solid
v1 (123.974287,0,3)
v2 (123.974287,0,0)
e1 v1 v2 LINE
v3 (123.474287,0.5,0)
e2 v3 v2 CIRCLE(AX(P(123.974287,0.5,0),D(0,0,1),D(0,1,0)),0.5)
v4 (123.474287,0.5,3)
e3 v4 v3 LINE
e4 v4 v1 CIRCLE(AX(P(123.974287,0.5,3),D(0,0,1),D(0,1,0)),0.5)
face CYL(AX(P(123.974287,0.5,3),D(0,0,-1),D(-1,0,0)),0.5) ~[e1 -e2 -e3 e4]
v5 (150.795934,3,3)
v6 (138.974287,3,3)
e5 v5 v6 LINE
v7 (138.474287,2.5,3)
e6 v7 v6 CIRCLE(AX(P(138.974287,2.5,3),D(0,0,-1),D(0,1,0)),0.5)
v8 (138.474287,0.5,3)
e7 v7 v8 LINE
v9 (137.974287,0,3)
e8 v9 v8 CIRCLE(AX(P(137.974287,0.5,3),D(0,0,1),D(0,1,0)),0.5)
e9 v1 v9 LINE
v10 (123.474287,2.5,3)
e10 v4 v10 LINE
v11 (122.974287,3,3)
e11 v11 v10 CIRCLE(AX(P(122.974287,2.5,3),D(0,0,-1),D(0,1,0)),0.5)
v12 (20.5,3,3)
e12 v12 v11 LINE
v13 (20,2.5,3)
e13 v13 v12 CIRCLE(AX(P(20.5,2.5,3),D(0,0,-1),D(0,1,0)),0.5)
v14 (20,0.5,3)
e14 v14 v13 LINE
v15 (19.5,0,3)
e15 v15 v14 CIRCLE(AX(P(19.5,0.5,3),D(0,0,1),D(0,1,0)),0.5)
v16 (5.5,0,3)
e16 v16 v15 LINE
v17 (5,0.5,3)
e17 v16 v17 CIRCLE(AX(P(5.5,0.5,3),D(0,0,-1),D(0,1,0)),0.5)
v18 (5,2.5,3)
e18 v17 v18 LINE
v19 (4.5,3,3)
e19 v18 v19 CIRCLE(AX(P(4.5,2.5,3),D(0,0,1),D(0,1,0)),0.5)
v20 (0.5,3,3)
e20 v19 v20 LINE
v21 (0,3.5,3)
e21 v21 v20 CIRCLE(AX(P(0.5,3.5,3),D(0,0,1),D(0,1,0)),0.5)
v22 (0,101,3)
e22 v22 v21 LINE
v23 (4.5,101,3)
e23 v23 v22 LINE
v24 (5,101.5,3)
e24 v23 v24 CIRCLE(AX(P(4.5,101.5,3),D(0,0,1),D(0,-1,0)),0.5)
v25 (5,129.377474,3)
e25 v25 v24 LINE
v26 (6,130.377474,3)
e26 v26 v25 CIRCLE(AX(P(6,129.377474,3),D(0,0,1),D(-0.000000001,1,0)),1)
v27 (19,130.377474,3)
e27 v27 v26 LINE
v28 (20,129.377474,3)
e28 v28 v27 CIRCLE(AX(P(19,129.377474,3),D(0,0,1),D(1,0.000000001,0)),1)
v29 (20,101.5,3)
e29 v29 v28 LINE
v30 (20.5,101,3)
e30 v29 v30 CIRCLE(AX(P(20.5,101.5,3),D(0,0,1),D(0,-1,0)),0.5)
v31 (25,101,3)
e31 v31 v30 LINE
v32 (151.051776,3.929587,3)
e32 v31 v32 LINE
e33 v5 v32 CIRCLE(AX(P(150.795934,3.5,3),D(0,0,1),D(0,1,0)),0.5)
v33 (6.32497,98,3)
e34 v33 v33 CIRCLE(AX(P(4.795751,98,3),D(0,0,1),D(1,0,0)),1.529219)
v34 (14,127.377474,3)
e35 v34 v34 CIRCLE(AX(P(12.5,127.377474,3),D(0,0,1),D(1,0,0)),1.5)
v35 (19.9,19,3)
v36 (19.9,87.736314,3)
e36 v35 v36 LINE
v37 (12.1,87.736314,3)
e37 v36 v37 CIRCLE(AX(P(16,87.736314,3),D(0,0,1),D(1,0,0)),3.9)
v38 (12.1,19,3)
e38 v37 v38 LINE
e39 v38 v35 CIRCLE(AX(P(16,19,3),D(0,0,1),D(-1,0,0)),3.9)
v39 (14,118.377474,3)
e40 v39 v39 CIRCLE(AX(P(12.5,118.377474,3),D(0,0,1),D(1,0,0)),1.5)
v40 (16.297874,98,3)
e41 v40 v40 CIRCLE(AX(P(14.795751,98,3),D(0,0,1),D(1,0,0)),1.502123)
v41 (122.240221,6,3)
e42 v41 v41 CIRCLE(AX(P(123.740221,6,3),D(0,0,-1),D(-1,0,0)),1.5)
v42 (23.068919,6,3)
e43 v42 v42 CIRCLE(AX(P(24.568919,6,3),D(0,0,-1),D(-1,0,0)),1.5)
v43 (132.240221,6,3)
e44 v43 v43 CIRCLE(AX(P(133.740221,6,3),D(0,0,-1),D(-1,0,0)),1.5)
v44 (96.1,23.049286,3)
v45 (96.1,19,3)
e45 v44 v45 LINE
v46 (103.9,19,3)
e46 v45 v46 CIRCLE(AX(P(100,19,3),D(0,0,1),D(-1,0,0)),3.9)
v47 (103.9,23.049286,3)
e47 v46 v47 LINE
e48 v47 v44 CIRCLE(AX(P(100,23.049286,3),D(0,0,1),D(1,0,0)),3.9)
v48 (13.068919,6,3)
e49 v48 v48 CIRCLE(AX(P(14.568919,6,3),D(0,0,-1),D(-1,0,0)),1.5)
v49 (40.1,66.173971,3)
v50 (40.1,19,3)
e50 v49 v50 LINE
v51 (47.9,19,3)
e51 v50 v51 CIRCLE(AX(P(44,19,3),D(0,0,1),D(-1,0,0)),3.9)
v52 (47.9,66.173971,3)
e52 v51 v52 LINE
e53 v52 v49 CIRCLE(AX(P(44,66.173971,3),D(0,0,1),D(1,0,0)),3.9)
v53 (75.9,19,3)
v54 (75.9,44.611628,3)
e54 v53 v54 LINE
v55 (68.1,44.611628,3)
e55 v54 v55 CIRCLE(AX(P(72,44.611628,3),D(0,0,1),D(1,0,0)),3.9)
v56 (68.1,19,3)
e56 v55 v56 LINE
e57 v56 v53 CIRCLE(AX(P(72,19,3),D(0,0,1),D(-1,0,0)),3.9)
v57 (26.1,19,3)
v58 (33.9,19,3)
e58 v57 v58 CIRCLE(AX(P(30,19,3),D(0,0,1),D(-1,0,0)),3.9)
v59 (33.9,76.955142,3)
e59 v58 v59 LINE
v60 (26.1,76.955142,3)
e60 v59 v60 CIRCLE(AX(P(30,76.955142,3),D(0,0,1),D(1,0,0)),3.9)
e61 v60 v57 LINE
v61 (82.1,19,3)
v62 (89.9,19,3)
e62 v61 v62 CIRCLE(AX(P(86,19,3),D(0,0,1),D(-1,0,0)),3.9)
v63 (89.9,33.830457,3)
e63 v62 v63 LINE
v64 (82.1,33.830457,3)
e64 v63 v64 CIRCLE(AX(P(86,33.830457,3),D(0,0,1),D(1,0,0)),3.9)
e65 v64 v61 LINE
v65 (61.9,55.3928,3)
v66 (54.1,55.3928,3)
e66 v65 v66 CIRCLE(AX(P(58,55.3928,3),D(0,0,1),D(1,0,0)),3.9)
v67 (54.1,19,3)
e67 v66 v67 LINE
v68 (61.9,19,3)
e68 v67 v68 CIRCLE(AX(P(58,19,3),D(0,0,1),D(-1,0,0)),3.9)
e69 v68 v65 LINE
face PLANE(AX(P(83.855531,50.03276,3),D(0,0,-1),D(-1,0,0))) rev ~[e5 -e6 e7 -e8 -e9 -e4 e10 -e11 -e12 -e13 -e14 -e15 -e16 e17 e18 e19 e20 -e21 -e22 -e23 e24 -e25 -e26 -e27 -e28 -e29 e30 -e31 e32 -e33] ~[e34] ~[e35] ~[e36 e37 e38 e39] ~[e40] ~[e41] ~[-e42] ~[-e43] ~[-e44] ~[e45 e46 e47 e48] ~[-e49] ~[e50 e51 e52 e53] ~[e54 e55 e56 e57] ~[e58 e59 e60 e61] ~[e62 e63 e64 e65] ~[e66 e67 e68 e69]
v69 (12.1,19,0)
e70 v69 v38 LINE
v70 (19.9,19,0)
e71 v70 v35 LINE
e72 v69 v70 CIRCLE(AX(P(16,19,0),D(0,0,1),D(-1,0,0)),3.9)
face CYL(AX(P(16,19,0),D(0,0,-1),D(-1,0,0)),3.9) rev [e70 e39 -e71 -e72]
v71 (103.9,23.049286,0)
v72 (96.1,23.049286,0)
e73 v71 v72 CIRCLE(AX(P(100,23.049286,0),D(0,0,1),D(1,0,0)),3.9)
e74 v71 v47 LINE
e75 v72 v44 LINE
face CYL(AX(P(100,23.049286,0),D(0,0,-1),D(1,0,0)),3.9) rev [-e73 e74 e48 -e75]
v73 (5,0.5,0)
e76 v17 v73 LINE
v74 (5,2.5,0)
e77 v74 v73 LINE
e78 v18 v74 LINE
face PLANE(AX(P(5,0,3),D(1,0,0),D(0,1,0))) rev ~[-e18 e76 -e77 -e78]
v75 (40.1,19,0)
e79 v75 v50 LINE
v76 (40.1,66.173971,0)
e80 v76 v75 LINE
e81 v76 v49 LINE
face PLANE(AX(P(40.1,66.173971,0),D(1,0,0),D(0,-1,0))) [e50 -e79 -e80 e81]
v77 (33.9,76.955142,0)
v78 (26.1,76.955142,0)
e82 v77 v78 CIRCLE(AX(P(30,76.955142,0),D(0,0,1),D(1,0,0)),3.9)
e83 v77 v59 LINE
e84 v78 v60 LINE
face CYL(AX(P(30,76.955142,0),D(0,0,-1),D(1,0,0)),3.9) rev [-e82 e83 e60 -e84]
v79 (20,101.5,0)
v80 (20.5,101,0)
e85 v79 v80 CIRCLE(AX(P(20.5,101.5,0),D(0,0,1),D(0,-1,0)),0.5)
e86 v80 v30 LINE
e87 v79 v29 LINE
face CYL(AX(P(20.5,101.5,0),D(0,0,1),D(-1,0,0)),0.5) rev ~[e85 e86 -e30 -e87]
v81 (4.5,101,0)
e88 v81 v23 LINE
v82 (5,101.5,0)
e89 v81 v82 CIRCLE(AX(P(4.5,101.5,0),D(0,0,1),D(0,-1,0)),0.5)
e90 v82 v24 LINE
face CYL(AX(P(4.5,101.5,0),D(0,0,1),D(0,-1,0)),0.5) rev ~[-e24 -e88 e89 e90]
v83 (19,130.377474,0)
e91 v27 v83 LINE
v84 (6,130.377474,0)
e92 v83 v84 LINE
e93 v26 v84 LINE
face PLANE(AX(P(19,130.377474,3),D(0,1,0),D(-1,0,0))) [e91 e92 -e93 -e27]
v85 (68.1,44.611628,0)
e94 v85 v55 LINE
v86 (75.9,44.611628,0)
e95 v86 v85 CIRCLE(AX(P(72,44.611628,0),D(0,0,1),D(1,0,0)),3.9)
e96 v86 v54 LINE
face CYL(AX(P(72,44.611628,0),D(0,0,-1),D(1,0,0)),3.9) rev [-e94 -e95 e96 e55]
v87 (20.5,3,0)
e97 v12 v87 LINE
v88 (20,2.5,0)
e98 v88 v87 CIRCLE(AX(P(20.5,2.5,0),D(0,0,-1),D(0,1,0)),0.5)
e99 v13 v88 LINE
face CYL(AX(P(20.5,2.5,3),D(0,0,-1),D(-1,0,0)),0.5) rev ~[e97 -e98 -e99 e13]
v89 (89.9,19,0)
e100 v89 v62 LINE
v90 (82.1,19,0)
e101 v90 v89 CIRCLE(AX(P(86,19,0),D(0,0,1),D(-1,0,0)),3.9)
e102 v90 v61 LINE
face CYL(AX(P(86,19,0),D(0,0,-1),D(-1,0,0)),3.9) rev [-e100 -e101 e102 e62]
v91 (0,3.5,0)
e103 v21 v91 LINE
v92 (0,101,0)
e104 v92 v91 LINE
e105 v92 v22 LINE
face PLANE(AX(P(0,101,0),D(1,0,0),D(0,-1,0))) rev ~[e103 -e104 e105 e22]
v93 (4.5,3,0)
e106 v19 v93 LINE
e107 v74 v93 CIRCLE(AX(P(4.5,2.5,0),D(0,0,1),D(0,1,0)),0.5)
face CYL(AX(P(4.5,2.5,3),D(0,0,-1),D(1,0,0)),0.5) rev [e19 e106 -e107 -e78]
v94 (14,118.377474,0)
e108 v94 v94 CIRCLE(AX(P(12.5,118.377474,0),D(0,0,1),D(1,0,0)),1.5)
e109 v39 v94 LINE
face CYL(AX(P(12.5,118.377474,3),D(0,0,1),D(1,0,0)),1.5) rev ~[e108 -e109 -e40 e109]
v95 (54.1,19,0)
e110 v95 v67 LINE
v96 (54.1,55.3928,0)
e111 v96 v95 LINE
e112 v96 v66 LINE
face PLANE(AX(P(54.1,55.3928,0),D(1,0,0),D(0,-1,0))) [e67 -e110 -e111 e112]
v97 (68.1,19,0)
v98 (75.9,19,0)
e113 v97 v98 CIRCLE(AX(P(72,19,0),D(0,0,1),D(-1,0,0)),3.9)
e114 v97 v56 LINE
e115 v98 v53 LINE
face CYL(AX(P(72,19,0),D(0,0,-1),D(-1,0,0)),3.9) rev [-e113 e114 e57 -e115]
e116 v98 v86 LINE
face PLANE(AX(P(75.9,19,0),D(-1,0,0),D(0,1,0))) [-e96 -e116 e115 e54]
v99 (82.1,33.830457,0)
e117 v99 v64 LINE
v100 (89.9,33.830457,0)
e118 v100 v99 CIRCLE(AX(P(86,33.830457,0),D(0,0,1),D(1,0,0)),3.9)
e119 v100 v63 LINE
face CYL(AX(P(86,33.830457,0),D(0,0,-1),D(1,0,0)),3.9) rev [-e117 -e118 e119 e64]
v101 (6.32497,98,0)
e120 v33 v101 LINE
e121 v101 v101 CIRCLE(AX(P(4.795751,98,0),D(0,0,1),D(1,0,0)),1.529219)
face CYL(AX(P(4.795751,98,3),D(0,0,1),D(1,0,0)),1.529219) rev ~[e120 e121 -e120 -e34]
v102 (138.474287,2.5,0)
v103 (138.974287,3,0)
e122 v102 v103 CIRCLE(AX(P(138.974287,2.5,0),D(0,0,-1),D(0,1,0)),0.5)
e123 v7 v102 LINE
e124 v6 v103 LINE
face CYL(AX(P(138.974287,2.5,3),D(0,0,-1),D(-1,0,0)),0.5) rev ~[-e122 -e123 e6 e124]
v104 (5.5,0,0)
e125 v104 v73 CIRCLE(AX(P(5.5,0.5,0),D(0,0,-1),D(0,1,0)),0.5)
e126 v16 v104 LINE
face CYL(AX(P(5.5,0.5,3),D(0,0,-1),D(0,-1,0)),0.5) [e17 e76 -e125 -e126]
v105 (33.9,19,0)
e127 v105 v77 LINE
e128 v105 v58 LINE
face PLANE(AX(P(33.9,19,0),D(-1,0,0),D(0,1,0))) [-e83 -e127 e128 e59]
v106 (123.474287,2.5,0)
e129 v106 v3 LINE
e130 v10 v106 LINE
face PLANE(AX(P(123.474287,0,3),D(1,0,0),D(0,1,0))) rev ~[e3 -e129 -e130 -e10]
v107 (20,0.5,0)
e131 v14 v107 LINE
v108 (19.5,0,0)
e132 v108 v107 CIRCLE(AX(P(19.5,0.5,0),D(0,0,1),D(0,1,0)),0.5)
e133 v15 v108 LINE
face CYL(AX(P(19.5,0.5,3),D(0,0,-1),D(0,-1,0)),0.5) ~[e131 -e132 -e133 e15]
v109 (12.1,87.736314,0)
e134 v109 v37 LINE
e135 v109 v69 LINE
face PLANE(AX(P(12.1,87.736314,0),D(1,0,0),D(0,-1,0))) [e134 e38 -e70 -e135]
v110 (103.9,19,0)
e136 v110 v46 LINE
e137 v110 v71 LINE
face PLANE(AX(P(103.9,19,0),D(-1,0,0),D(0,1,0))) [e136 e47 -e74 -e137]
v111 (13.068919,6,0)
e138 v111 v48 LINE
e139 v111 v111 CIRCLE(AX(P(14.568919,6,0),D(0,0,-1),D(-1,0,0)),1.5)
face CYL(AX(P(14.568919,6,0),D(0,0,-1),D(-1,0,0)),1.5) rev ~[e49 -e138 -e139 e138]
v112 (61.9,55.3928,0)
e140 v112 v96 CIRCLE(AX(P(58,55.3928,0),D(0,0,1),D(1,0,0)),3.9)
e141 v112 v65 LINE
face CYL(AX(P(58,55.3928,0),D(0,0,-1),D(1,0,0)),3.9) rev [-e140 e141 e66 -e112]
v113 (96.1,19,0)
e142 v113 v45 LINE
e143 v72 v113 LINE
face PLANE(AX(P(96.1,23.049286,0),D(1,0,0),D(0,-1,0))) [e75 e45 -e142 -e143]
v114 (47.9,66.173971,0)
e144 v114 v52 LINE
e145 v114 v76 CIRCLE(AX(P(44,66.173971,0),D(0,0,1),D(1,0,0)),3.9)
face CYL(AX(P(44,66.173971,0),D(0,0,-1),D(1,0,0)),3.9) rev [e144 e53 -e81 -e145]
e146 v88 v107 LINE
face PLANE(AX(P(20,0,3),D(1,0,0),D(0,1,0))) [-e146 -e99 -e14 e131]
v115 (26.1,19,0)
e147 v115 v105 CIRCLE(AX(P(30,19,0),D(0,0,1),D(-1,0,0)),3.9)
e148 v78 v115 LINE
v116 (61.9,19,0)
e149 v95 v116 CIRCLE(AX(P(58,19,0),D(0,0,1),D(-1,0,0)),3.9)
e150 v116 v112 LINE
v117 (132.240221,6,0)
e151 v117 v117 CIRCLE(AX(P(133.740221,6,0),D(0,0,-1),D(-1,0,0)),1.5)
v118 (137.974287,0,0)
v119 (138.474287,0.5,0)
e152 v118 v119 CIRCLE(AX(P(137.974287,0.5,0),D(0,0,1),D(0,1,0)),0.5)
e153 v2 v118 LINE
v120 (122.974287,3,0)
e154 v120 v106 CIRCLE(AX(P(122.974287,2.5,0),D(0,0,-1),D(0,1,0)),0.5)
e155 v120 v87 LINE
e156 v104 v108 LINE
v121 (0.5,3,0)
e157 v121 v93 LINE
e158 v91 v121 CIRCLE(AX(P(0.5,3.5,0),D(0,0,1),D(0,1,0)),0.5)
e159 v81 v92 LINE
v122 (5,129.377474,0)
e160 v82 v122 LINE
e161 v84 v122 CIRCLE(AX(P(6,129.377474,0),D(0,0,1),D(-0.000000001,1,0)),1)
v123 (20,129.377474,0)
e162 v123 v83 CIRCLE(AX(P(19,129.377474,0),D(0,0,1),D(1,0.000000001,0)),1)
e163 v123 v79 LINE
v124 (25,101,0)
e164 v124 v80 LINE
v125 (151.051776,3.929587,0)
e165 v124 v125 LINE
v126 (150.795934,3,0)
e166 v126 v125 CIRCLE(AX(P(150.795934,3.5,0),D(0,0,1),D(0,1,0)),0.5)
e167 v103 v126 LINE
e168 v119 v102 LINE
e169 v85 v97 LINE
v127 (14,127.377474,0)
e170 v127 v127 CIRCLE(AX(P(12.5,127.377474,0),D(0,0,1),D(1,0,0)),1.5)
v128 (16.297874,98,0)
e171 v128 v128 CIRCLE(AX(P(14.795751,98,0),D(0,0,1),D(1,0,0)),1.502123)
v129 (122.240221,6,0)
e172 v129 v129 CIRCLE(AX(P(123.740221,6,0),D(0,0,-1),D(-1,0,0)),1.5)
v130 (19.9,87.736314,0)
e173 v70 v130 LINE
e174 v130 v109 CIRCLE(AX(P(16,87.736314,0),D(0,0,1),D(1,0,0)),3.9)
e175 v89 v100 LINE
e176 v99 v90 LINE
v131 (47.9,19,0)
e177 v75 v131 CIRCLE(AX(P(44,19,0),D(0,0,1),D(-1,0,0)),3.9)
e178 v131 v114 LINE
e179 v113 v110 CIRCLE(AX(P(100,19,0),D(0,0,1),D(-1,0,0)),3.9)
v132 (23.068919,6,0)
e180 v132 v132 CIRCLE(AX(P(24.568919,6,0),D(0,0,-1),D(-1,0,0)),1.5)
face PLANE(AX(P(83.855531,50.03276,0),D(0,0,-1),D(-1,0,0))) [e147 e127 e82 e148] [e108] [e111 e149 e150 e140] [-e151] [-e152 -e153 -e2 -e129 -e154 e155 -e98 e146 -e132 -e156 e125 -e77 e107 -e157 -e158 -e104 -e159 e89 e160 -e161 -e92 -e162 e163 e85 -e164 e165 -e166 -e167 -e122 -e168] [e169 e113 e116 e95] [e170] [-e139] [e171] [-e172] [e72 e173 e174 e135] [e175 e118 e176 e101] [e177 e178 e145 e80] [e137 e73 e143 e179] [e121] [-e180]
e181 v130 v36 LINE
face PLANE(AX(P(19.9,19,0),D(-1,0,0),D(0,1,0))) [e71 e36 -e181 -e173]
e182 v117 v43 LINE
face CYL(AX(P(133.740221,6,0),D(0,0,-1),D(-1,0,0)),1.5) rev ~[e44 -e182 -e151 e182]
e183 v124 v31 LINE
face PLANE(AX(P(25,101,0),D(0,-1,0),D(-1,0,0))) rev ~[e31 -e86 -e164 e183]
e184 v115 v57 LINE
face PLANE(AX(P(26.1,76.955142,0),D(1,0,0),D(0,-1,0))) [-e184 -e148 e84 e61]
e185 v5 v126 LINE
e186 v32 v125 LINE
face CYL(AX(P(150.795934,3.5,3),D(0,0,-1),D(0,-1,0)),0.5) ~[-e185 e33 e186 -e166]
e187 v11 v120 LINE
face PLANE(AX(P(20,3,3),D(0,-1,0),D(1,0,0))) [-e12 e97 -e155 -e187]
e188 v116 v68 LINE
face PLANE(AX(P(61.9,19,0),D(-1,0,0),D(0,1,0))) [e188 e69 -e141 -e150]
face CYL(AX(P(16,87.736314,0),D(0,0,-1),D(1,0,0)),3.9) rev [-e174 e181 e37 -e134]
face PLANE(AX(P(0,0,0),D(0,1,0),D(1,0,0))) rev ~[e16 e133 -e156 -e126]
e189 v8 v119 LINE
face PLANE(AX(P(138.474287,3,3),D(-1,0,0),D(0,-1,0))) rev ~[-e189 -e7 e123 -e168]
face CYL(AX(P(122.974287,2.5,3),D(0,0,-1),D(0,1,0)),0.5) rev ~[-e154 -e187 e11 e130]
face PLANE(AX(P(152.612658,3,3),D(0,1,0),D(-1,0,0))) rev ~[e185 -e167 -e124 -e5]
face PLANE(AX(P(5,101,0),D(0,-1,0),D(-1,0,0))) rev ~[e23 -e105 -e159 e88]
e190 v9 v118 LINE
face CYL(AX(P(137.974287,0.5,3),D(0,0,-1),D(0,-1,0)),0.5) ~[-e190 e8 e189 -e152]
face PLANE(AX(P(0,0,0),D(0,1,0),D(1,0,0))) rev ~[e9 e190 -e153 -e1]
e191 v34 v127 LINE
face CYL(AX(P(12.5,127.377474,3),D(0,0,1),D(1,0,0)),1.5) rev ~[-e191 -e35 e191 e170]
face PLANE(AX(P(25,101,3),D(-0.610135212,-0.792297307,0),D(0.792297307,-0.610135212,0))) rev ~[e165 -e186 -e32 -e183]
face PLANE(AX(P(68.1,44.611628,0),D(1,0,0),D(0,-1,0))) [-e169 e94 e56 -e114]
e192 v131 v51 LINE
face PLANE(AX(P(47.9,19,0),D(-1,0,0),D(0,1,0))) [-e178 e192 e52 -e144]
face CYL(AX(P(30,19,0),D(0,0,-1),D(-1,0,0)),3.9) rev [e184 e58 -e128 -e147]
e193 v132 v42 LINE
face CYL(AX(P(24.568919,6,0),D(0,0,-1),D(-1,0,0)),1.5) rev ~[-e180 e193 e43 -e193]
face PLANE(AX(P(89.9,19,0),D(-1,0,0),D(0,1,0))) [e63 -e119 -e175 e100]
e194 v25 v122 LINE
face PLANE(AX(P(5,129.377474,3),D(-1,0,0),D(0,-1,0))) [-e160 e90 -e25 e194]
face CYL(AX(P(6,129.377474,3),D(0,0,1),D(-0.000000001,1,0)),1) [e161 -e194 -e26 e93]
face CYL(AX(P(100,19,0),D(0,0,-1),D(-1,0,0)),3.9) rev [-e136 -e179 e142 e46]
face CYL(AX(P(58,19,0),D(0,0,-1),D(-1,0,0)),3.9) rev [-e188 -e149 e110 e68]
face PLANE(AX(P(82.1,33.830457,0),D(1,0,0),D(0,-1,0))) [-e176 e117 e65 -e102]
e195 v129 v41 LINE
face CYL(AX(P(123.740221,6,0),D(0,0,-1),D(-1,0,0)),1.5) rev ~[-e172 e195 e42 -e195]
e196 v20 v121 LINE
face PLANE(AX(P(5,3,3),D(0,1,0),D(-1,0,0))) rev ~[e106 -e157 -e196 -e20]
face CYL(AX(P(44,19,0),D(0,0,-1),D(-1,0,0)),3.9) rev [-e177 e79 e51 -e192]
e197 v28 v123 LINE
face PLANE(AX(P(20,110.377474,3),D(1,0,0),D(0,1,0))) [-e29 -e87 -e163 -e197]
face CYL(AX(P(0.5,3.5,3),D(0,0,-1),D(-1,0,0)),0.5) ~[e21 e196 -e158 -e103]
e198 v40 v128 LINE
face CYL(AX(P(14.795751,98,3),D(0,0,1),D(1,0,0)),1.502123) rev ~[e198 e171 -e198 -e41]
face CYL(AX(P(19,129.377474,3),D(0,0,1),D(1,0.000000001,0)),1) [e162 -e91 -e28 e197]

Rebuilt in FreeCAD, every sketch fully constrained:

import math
import FreeCAD as App
import Part
import Sketcher

V = App.Vector
Q = App.Units.Quantity


def edges_at(feature, points):
    """Names of the edges that pass closest to the given points."""
    edges = feature.Shape.Edges
    near = lambda p: min(range(len(edges)), key=lambda i: edges[i].distToShape(Part.Vertex(*p))[0])
    return sorted({f"Edge{near(p) + 1}" for p in points})


def add_polygon(sketch, points):
    """Adds a closed chain of lines whose ends are joined by coincident constraints."""
    first, n = sketch.GeometryCount, len(points)
    for a, b in zip(points, points[1:] + points[:1]):
        sketch.addGeometry(Part.LineSegment(App.Vector(*a, 0), App.Vector(*b, 0)), False)
    for i in range(n):
        sketch.addConstraint(Sketcher.Constraint("Coincident", first + i, 2, first + (i + 1) % n, 1))

doc = App.newDocument("Part")
body = doc.addObject("PartDesign::Body", "Body")

# Sketch on XY plane
sketch1 = body.newObject("Sketcher::SketchObject", "Sketch")
sketch1.AttachmentSupport = (doc.getObject("XY_Plane"), [""])
sketch1.MapMode = "FlatFace"
add_polygon(sketch1, [(0, 101), (0, 0), (157.7, 0), (25, 79), (25, 101), (20, 101), (20, 104), (5, 104), (5, 101)])  # lines 0-8
sketch1.addConstraint([
    Sketcher.Constraint("Vertical", 0),
    Sketcher.Constraint("Horizontal", 1),
    Sketcher.Constraint("Vertical", 3),
    Sketcher.Constraint("Horizontal", 4),
    Sketcher.Constraint("Vertical", 5),
    Sketcher.Constraint("Horizontal", 6),
    Sketcher.Constraint("Vertical", 7),
    Sketcher.Constraint("Horizontal", 8),
    Sketcher.Constraint("Coincident", 0, 2, -1, 1),
    Sketcher.Constraint("Horizontal", 4, 2, 7, 2),
    Sketcher.Constraint("Equal", 4, 8),
    Sketcher.Constraint("DistanceX", 4, 2, 4, 1, Q("5 mm")),
    Sketcher.Constraint("DistanceX", 6, 2, 6, 1, Q("15 mm")),
    Sketcher.Constraint("DistanceY", 0, 2, 0, 1, Q("101 mm")),
    Sketcher.Constraint("DistanceY", 3, 1, 3, 2, Q("22 mm")),
    Sketcher.Constraint("DistanceY", 5, 1, 5, 2, Q("3 mm")),
    Sketcher.Constraint("DistanceX", 1, 1, 1, 2, Q("157.65 mm")),
])
pad1 = body.newObject("PartDesign::Pad", "Pad")
pad1.Profile = sketch1
pad1.Length = 3

# Sketch on XZ plane
sketch2 = body.newObject("Sketcher::SketchObject", "Sketch001")
sketch2.AttachmentSupport = (doc.getObject("XZ_Plane"), [""])
sketch2.MapMode = "FlatFace"
sketch2.AttachmentOffset = App.Placement(V(0, 0, -104), App.Rotation())
add_polygon(sketch2, [(5, 0), (5, 3), (20, 3), (20, 0)])  # lines 0-3
sketch2.addConstraint([
    Sketcher.Constraint("Vertical", 0),
    Sketcher.Constraint("Horizontal", 1),
    Sketcher.Constraint("Vertical", 2),
    Sketcher.Constraint("Horizontal", 3),
    Sketcher.Constraint("PointOnObject", 2, 2, -1),
    Sketcher.Constraint("DistanceX", 1, 1, 1, 2, Q("15 mm")),
    Sketcher.Constraint("DistanceY", 0, 1, 0, 2, Q("3 mm")),
    Sketcher.Constraint("DistanceX", -1, 1, 0, 2, Q("5 mm")),
])
pad2 = body.newObject("PartDesign::Pad", "Pad001")
pad2.Profile = sketch2
pad2.Length = 0.5
pad2.Reversed = True
doc.recompute()

fillet = body.newObject("PartDesign::Fillet", "Fillet")
fillet.Base = (pad2, edges_at(pad2, [(25, 79, 1.5)]))
fillet.Radius = 3
doc.recompute()

fillet2 = body.newObject("PartDesign::Fillet", "Fillet001")
fillet2.Base = (fillet, edges_at(fillet, [(157.65, 0, 1.5)]))
fillet2.Radius = 0.5
doc.recompute()

fillet3 = body.newObject("PartDesign::Fillet", "Fillet002")
fillet3.Base = (fillet2, edges_at(fillet2, [(0, 0, 1.5)]))
fillet3.Radius = 0.5

# Sketch on XY plane
sketch3 = body.newObject("Sketcher::SketchObject", "Sketch002")
sketch3.AttachmentSupport = (doc.getObject("XY_Plane"), [""])
sketch3.MapMode = "FlatFace"
sketch3.AttachmentOffset = App.Placement(V(0, 0, 3), App.Rotation())
add_polygon(sketch3, [(20, 3), (20, 0), (123.47, 0), (123.47, 3)])  # lines 0-3
sketch3.addGeometry(Part.LineSegment(V(5, 3, 0), V(0, 3, 0)), False)  # 4
sketch3.addGeometry(Part.LineSegment(V(0, 3, 0), V(0, 0.5, 0)), False)  # 5
sketch3.addGeometry(Part.ArcOfCircle(Part.Circle(V(0.5, 0.5, 0), V(0, 0, 1), 0.5), math.radians(180), math.radians(270)), False)  # 6
sketch3.addGeometry(Part.LineSegment(V(0.5, 0, 0), V(5, 0, 0)), False)  # 7
sketch3.addGeometry(Part.LineSegment(V(5, 0, 0), V(5, 3, 0)), False)  # 8
sketch3.addGeometry(Part.LineSegment(V(152.61, 3, 0), V(138.47, 3, 0)), False)  # 9
sketch3.addGeometry(Part.LineSegment(V(138.47, 3, 0), V(138.47, 0, 0)), False)  # 10
sketch3.addGeometry(Part.LineSegment(V(138.47, 0, 0), V(155.83, 0, 0)), False)  # 11
sketch3.addGeometry(Part.ArcOfCircle(Part.Circle(V(155.83, 0.5, 0), V(0, 0, 1), 0.5), math.radians(-90), math.radians(59)), False)  # 12
sketch3.addGeometry(Part.LineSegment(V(156.09, 0.93, 0), V(152.61, 3, 0)), False)  # 13
sketch3.addConstraint([
    Sketcher.Constraint("Coincident", 4, 2, 5, 1),
    Sketcher.Constraint("Tangent", 5, 2, 6, 1),
    Sketcher.Constraint("Tangent", 6, 2, 7, 1),
    Sketcher.Constraint("Coincident", 7, 2, 8, 1),
    Sketcher.Constraint("Coincident", 8, 2, 4, 1),
    Sketcher.Constraint("Coincident", 9, 2, 10, 1),
    Sketcher.Constraint("Coincident", 10, 2, 11, 1),
    Sketcher.Constraint("Tangent", 11, 2, 12, 1),
    Sketcher.Constraint("Tangent", 12, 2, 13, 1),
    Sketcher.Constraint("Coincident", 13, 2, 9, 1),
    Sketcher.Constraint("Vertical", 0),
    Sketcher.Constraint("Horizontal", 1),
    Sketcher.Constraint("Vertical", 2),
    Sketcher.Constraint("Horizontal", 3),
    Sketcher.Constraint("Horizontal", 4),
    Sketcher.Constraint("Vertical", 5),
    Sketcher.Constraint("Horizontal", 7),
    Sketcher.Constraint("Vertical", 8),
    Sketcher.Constraint("Horizontal", 9),
    Sketcher.Constraint("Vertical", 10),
    Sketcher.Constraint("Horizontal", 11),
    Sketcher.Constraint("Equal", 6, 12),
    Sketcher.Constraint("PointOnObject", 0, 2, -1),
    Sketcher.Constraint("PointOnObject", 4, 2, -2),
    Sketcher.Constraint("PointOnObject", 6, 2, -1),
    Sketcher.Constraint("PointOnObject", 10, 2, -1),
    Sketcher.Constraint("Horizontal", 3, 2, 4, 2),
    Sketcher.Constraint("Horizontal", 8, 2, 9, 2),
    Sketcher.Constraint("Radius", 6, Q("0.5 mm")),
    Sketcher.Constraint("DistanceX", 4, 2, 4, 1, Q("5 mm")),
    Sketcher.Constraint("DistanceY", 0, 2, 0, 1, Q("3 mm")),
    Sketcher.Constraint("DistanceX", -1, 1, 0, 2, Q("20 mm")),
    Sketcher.Constraint("DistanceX", 2, 2, 9, 2, Q("15 mm")),
    Sketcher.Constraint("DistanceX", 9, 2, 9, 1, Q("14.138371 mm")),
    Sketcher.Constraint("DistanceX", 11, 1, 11, 2, Q("17.358988 mm")),
    Sketcher.Constraint("DistanceX", 1, 1, 1, 2, Q("103.474287 mm")),
])
pocket1 = body.newObject("PartDesign::Pocket", "Pocket")
pocket1.Profile = sketch3
pocket1.Length = 10
doc.recompute()

fillet4 = body.newObject("PartDesign::Fillet", "Fillet003")
fillet4.Base = (pocket1, edges_at(pocket1, [
    (123.474, 0, 1.5),
    (20, 0, 1.5),
    (138.474, 0, 1.5),
    (152.613, 3, 1.5),
    (0, 3, 1.5),
    (5, 0, 1.5),
]))
fillet4.Radius = 0.5
doc.recompute()

fillet5 = body.newObject("PartDesign::Fillet", "Fillet004")
fillet5.Base = (fillet4, edges_at(fillet4, [
    (123.474, 3, 1.5),
    (20, 3, 1.5),
    (5, 101, 1.5),
    (20, 101, 1.5),
    (138.474, 3, 1.5),
    (5, 3, 1.5),
]))
fillet5.Radius = 0.5

# Sketch on XY plane
sketch4 = body.newObject("Sketcher::SketchObject", "Sketch003")
sketch4.AttachmentSupport = (doc.getObject("XY_Plane"), [""])
sketch4.MapMode = "FlatFace"
add_polygon(sketch4, [(20, 111), (20, 102), (5, 102), (5, 111)])  # lines 0-3
sketch4.addConstraint([
    Sketcher.Constraint("Vertical", 0),
    Sketcher.Constraint("Horizontal", 1),
    Sketcher.Constraint("Vertical", 2),
    Sketcher.Constraint("Horizontal", 3),
    Sketcher.Constraint("DistanceX", 1, 2, 1, 1, Q("15 mm")),
    Sketcher.Constraint("DistanceY", 0, 2, 0, 1, Q("9 mm")),
    Sketcher.Constraint("DistanceX", -1, 1, 0, 2, Q("20 mm")),
    Sketcher.Constraint("DistanceY", -1, 1, 0, 2, Q("102.377474 mm")),
])
pad3 = body.newObject("PartDesign::Pad", "Pad002")
pad3.Profile = sketch4
pad3.Length = 3
doc.recompute()

fillet6 = body.newObject("PartDesign::Fillet", "Fillet005")
fillet6.Base = (pad3, edges_at(pad3, [(5, 111.377, 1.5), (20, 111.377, 1.5)]))
fillet6.Radius = 1

# Sketch on XY plane
sketch5 = body.newObject("Sketcher::SketchObject", "Sketch004")
sketch5.AttachmentSupport = (doc.getObject("XY_Plane"), [""])
sketch5.MapMode = "FlatFace"
sketch5.addGeometry([
    Part.Circle(V(14.6, 6, 0), V(0, 0, 1), 1.5),
    Part.Circle(V(24.6, 6, 0), V(0, 0, 1), 1.5),
    Part.Circle(V(123.7, 6, 0), V(0, 0, 1), 1.5),
    Part.Circle(V(133.7, 6, 0), V(0, 0, 1), 1.5),
], False)
sketch5.addConstraint([
    Sketcher.Constraint("Equal", 0, 1),
    Sketcher.Constraint("Equal", 1, 2),
    Sketcher.Constraint("Equal", 2, 3),
    Sketcher.Constraint("Horizontal", 0, 3, 1, 3),
    Sketcher.Constraint("Horizontal", 1, 3, 2, 3),
    Sketcher.Constraint("Horizontal", 2, 3, 3, 3),
    Sketcher.Constraint("Diameter", 0, Q("3 mm")),
    Sketcher.Constraint("DistanceY", -1, 1, 0, 3, Q("6 mm")),
    Sketcher.Constraint("DistanceX", 0, 3, 1, 3, Q("10 mm")),
    Sketcher.Constraint("DistanceX", 2, 3, 3, 3, Q("10 mm")),
    Sketcher.Constraint("DistanceX", 1, 3, 2, 3, Q("99.171301 mm")),
    Sketcher.Constraint("DistanceX", -1, 1, 0, 3, Q("14.568919 mm")),
])
pocket2 = body.newObject("PartDesign::Pocket", "Pocket001")
pocket2.Profile = sketch5
pocket2.Type = "ThroughAll"
pocket2.Reversed = True

# Sketch on XY plane
sketch6 = body.newObject("Sketcher::SketchObject", "Sketch005")
sketch6.AttachmentSupport = (doc.getObject("XY_Plane"), [""])
sketch6.MapMode = "FlatFace"
sketch6.AttachmentOffset = App.Placement(V(0, 0, 3), App.Rotation())
sketch6.addGeometry([
    Part.Circle(V(4.8, 98, 0), V(0, 0, 1), 1.5),
    Part.Circle(V(14.8, 98, 0), V(0, 0, 1), 1.5),
], False)
sketch6.addConstraint([
    Sketcher.Constraint("Horizontal", 0, 3, 1, 3),
    Sketcher.Constraint("DistanceY", -1, 1, 0, 3, Q("98 mm")),
    Sketcher.Constraint("DistanceX", 0, 3, 1, 3, Q("10 mm")),
    Sketcher.Constraint("Diameter", 0, Q("3.058438 mm")),
    Sketcher.Constraint("Diameter", 1, Q("3.004246 mm")),
    Sketcher.Constraint("DistanceX", -1, 1, 0, 3, Q("4.795751 mm")),
])
pocket3 = body.newObject("PartDesign::Pocket", "Pocket002")
pocket3.Profile = sketch6
pocket3.Type = "ThroughAll"

# Sketch on XY plane
sketch7 = body.newObject("Sketcher::SketchObject", "Sketch006")
sketch7.AttachmentSupport = (doc.getObject("XY_Plane"), [""])
sketch7.MapMode = "FlatFace"
sketch7.AttachmentOffset = App.Placement(V(0, 0, 3), App.Rotation())
sketch7.addGeometry([
    Part.LineSegment(V(19, 130.4, 0), V(6, 130.4, 0)),  # 0
    Part.ArcOfCircle(Part.Circle(V(6, 129.4, 0), V(0, 0, 1), 1), math.radians(90), math.radians(180)),  # 1
    Part.LineSegment(V(5, 129.4, 0), V(5, 110.4, 0)),  # 2
    Part.LineSegment(V(5, 110.4, 0), V(20, 110.4, 0)),  # 3
    Part.LineSegment(V(20, 110.4, 0), V(20, 129.4, 0)),  # 4
    Part.ArcOfCircle(Part.Circle(V(19, 129.4, 0), V(0, 0, 1), 1), math.radians(0), math.radians(90)),  # 5
], False)
sketch7.addConstraint([
    Sketcher.Constraint("Tangent", 0, 2, 1, 1),
    Sketcher.Constraint("Tangent", 1, 2, 2, 1),
    Sketcher.Constraint("Coincident", 2, 2, 3, 1),
    Sketcher.Constraint("Coincident", 3, 2, 4, 1),
    Sketcher.Constraint("Tangent", 4, 2, 5, 1),
    Sketcher.Constraint("Tangent", 5, 2, 0, 1),
    Sketcher.Constraint("Horizontal", 0),
    Sketcher.Constraint("Vertical", 2),
    Sketcher.Constraint("Horizontal", 3),
    Sketcher.Constraint("Vertical", 4),
    Sketcher.Constraint("Equal", 1, 5),
    Sketcher.Constraint("Radius", 1, Q("1 mm")),
    Sketcher.Constraint("DistanceX", 0, 2, 0, 1, Q("13 mm")),
    Sketcher.Constraint("DistanceY", 2, 2, 2, 1, Q("19 mm")),
    Sketcher.Constraint("DistanceX", -1, 1, 1, 3, Q("6 mm")),
    Sketcher.Constraint("DistanceY", -1, 1, 1, 3, Q("129.377474 mm")),
])
pad4 = body.newObject("PartDesign::Pad", "Pad003")
pad4.Profile = sketch7
pad4.Length = 3
pad4.Reversed = True

# Sketch on XY plane
sketch8 = body.newObject("Sketcher::SketchObject", "Sketch007")
sketch8.AttachmentSupport = (doc.getObject("XY_Plane"), [""])
sketch8.MapMode = "FlatFace"
sketch8.AttachmentOffset = App.Placement(V(0, 0, 3), App.Rotation())
sketch8.addGeometry([
    Part.Circle(V(12.5, 127.4, 0), V(0, 0, 1), 1.5),
    Part.Circle(V(12.5, 118.4, 0), V(0, 0, 1), 1.5),
], False)
sketch8.addConstraint([
    Sketcher.Constraint("Equal", 0, 1),
    Sketcher.Constraint("Vertical", 0, 3, 1, 3),
    Sketcher.Constraint("Diameter", 0, Q("3 mm")),
    Sketcher.Constraint("DistanceY", 1, 3, 0, 3, Q("9 mm")),
    Sketcher.Constraint("DistanceX", -1, 1, 0, 3, Q("12.5 mm")),
    Sketcher.Constraint("DistanceY", -1, 1, 0, 3, Q("127.377474 mm")),
])
pocket4 = body.newObject("PartDesign::Pocket", "Pocket003")
pocket4.Profile = sketch8
pocket4.Length = 10

# Sketch on XY plane
sketch9 = body.newObject("Sketcher::SketchObject", "Sketch008")
sketch9.AttachmentSupport = (doc.getObject("XY_Plane"), [""])
sketch9.MapMode = "FlatFace"
sketch9.AttachmentOffset = App.Placement(V(0, 0, 3), App.Rotation())
sketch9.addGeometry([
    Part.LineSegment(V(151.1, 3.9, 0), V(25, 101, 0)),
    Part.LineSegment(V(25, 101, 0), V(25, 80.7, 0)),
    Part.ArcOfCircle(Part.Circle(V(28, 80.7, 0), V(0, 0, 1), 3), math.radians(180), math.radians(239)),
    Part.LineSegment(V(26.5, 78.1, 0), V(151.1, 3.9, 0)),
], False)
sketch9.addConstraint([
    Sketcher.Constraint("Coincident", 0, 2, 1, 1),
    Sketcher.Constraint("Tangent", 1, 2, 2, 1),
    Sketcher.Constraint("Tangent", 2, 2, 3, 1),
    Sketcher.Constraint("Coincident", 3, 2, 0, 1),
    Sketcher.Constraint("Vertical", 1),
    Sketcher.Constraint("Radius", 2, Q("3 mm")),
    Sketcher.Constraint("DistanceX", -1, 1, 2, 3, Q("28 mm")),
    Sketcher.Constraint("DistanceY", -1, 1, 0, 2, Q("101 mm")),
    Sketcher.Constraint("DistanceY", 1, 2, 1, 1, Q("20.294932 mm")),
    Sketcher.Constraint("Distance", 0, Q("159.096559 mm")),
    Sketcher.Constraint("DistanceX", -1, 1, 2, 2, Q("26.464951 mm")),
])
pad5 = body.newObject("PartDesign::Pad", "Pad004")
pad5.Profile = sketch9
pad5.Length = 3
pad5.Reversed = True

# Sketch on XY plane
sketch10 = body.newObject("Sketcher::SketchObject", "Sketch009")
sketch10.AttachmentSupport = (doc.getObject("XY_Plane"), [""])
sketch10.MapMode = "FlatFace"
sketch10.addGeometry([
    Part.LineSegment(V(19.9, 87.7, 0), V(19.9, 19, 0)),  # 0
    Part.ArcOfCircle(Part.Circle(V(16, 19, 0), V(0, 0, 1), 3.9), math.radians(180), math.radians(360)),  # 1
    Part.LineSegment(V(12.1, 19, 0), V(12.1, 87.7, 0)),  # 2
    Part.ArcOfCircle(Part.Circle(V(16, 87.7, 0), V(0, 0, 1), 3.9), math.radians(0), math.radians(180)),  # 3
    Part.LineSegment(V(26.1, 19, 0), V(26.1, 77, 0)),  # 4
    Part.ArcOfCircle(Part.Circle(V(30, 77, 0), V(0, 0, 1), 3.9), math.radians(0), math.radians(180)),  # 5
    Part.LineSegment(V(33.9, 77, 0), V(33.9, 19, 0)),  # 6
    Part.ArcOfCircle(Part.Circle(V(30, 19, 0), V(0, 0, 1), 3.9), math.radians(180), math.radians(360)),  # 7
    Part.LineSegment(V(40.1, 19, 0), V(40.1, 66.2, 0)),  # 8
    Part.ArcOfCircle(Part.Circle(V(44, 66.2, 0), V(0, 0, 1), 3.9), math.radians(0), math.radians(180)),  # 9
    Part.LineSegment(V(47.9, 66.2, 0), V(47.9, 19, 0)),  # 10
    Part.ArcOfCircle(Part.Circle(V(44, 19, 0), V(0, 0, 1), 3.9), math.radians(180), math.radians(360)),  # 11
    Part.LineSegment(V(54.1, 19, 0), V(54.1, 55.4, 0)),  # 12
    Part.ArcOfCircle(Part.Circle(V(58, 55.4, 0), V(0, 0, 1), 3.9), math.radians(0), math.radians(180)),  # 13
    Part.LineSegment(V(61.9, 55.4, 0), V(61.9, 19, 0)),  # 14
    Part.ArcOfCircle(Part.Circle(V(58, 19, 0), V(0, 0, 1), 3.9), math.radians(180), math.radians(360)),  # 15
    Part.LineSegment(V(68.1, 19, 0), V(68.1, 44.6, 0)),  # 16
    Part.ArcOfCircle(Part.Circle(V(72, 44.6, 0), V(0, 0, 1), 3.9), math.radians(0), math.radians(180)),  # 17
    Part.LineSegment(V(75.9, 44.6, 0), V(75.9, 19, 0)),  # 18
    Part.ArcOfCircle(Part.Circle(V(72, 19, 0), V(0, 0, 1), 3.9), math.radians(180), math.radians(360)),  # 19
    Part.LineSegment(V(82.1, 19, 0), V(82.1, 33.8, 0)),  # 20
    Part.ArcOfCircle(Part.Circle(V(86, 33.8, 0), V(0, 0, 1), 3.9), math.radians(0), math.radians(180)),  # 21
    Part.LineSegment(V(89.9, 33.8, 0), V(89.9, 19, 0)),  # 22
    Part.ArcOfCircle(Part.Circle(V(86, 19, 0), V(0, 0, 1), 3.9), math.radians(180), math.radians(360)),  # 23
    Part.LineSegment(V(96.1, 19, 0), V(96.1, 23, 0)),  # 24
    Part.ArcOfCircle(Part.Circle(V(100, 23, 0), V(0, 0, 1), 3.9), math.radians(0), math.radians(180)),  # 25
    Part.LineSegment(V(103.9, 23, 0), V(103.9, 19, 0)),  # 26
    Part.ArcOfCircle(Part.Circle(V(100, 19, 0), V(0, 0, 1), 3.9), math.radians(180), math.radians(360)),  # 27
], False)
sketch10.addConstraint([
    Sketcher.Constraint("Tangent", 0, 2, 1, 2),
    Sketcher.Constraint("Tangent", 1, 1, 2, 1),
    Sketcher.Constraint("Tangent", 2, 2, 3, 2),
    Sketcher.Constraint("Tangent", 3, 1, 0, 1),
    Sketcher.Constraint("Tangent", 4, 2, 5, 2),
    Sketcher.Constraint("Tangent", 5, 1, 6, 1),
    Sketcher.Constraint("Tangent", 6, 2, 7, 2),
    Sketcher.Constraint("Tangent", 7, 1, 4, 1),
    Sketcher.Constraint("Tangent", 8, 2, 9, 2),
    Sketcher.Constraint("Tangent", 9, 1, 10, 1),
    Sketcher.Constraint("Tangent", 10, 2, 11, 2),
    Sketcher.Constraint("Tangent", 11, 1, 8, 1),
    Sketcher.Constraint("Tangent", 12, 2, 13, 2),
    Sketcher.Constraint("Tangent", 13, 1, 14, 1),
    Sketcher.Constraint("Tangent", 14, 2, 15, 2),
    Sketcher.Constraint("Tangent", 15, 1, 12, 1),
    Sketcher.Constraint("Tangent", 16, 2, 17, 2),
    Sketcher.Constraint("Tangent", 17, 1, 18, 1),
    Sketcher.Constraint("Tangent", 18, 2, 19, 2),
    Sketcher.Constraint("Tangent", 19, 1, 16, 1),
    Sketcher.Constraint("Tangent", 20, 2, 21, 2),
    Sketcher.Constraint("Tangent", 21, 1, 22, 1),
    Sketcher.Constraint("Tangent", 22, 2, 23, 2),
    Sketcher.Constraint("Tangent", 23, 1, 20, 1),
    Sketcher.Constraint("Tangent", 24, 2, 25, 2),
    Sketcher.Constraint("Tangent", 25, 1, 26, 1),
    Sketcher.Constraint("Tangent", 26, 2, 27, 2),
    Sketcher.Constraint("Tangent", 27, 1, 24, 1),
    Sketcher.Constraint("Vertical", 0),
    Sketcher.Constraint("Vertical", 2),
    Sketcher.Constraint("Vertical", 4),
    Sketcher.Constraint("Vertical", 6),
    Sketcher.Constraint("Vertical", 8),
    Sketcher.Constraint("Vertical", 10),
    Sketcher.Constraint("Vertical", 12),
    Sketcher.Constraint("Vertical", 14),
    Sketcher.Constraint("Vertical", 16),
    Sketcher.Constraint("Vertical", 18),
    Sketcher.Constraint("Vertical", 20),
    Sketcher.Constraint("Vertical", 22),
    Sketcher.Constraint("Vertical", 24),
    Sketcher.Constraint("Vertical", 26),
    Sketcher.Constraint("Equal", 3, 5),
    Sketcher.Constraint("Equal", 7, 9),
    Sketcher.Constraint("Equal", 11, 13),
    Sketcher.Constraint("Equal", 15, 17),
    Sketcher.Constraint("Equal", 19, 21),
    Sketcher.Constraint("Equal", 23, 25),
    Sketcher.Constraint("Horizontal", 1, 3, 7, 3),
    Sketcher.Constraint("Horizontal", 7, 3, 11, 3),
    Sketcher.Constraint("Horizontal", 11, 3, 15, 3),
    Sketcher.Constraint("Horizontal", 15, 3, 19, 3),
    Sketcher.Constraint("Horizontal", 19, 3, 23, 3),
    Sketcher.Constraint("Horizontal", 23, 3, 27, 3),
    Sketcher.Constraint("Radius", 1, Q("3.9 mm")),
    Sketcher.Constraint("DistanceX", -1, 1, 1, 3, Q("16 mm")),
    Sketcher.Constraint("DistanceY", -1, 1, 1, 3, Q("19 mm")),
    Sketcher.Constraint("DistanceX", -1, 1, 5, 3, Q("30 mm")),
    Sketcher.Constraint("DistanceX", -1, 1, 9, 3, Q("44 mm")),
    Sketcher.Constraint("DistanceX", -1, 1, 13, 3, Q("58 mm")),
    Sketcher.Constraint("DistanceX", -1, 1, 17, 3, Q("72 mm")),
    Sketcher.Constraint("DistanceX", -1, 1, 21, 3, Q("86 mm")),
    Sketcher.Constraint("DistanceX", -1, 1, 25, 3, Q("100 mm")),
    Sketcher.Constraint("DistanceY", 12, 1, 12, 2, Q("36.3928 mm")),
    Sketcher.Constraint("DistanceY", 8, 1, 8, 2, Q("47.173971 mm")),
    Sketcher.Constraint("DistanceY", 16, 1, 16, 2, Q("25.611628 mm")),
    Sketcher.Constraint("DistanceY", 0, 2, 0, 1, Q("68.736314 mm")),
    Sketcher.Constraint("DistanceY", 4, 1, 4, 2, Q("57.955142 mm")),
    Sketcher.Constraint("DistanceY", 20, 1, 20, 2, Q("14.830457 mm")),
    Sketcher.Constraint("DistanceY", 24, 1, 24, 2, Q("4.049286 mm")),
])
pocket5 = body.newObject("PartDesign::Pocket", "Pocket004")
pocket5.Profile = sketch10
pocket5.Length = 3
pocket5.Reversed = True

doc.recompute()
